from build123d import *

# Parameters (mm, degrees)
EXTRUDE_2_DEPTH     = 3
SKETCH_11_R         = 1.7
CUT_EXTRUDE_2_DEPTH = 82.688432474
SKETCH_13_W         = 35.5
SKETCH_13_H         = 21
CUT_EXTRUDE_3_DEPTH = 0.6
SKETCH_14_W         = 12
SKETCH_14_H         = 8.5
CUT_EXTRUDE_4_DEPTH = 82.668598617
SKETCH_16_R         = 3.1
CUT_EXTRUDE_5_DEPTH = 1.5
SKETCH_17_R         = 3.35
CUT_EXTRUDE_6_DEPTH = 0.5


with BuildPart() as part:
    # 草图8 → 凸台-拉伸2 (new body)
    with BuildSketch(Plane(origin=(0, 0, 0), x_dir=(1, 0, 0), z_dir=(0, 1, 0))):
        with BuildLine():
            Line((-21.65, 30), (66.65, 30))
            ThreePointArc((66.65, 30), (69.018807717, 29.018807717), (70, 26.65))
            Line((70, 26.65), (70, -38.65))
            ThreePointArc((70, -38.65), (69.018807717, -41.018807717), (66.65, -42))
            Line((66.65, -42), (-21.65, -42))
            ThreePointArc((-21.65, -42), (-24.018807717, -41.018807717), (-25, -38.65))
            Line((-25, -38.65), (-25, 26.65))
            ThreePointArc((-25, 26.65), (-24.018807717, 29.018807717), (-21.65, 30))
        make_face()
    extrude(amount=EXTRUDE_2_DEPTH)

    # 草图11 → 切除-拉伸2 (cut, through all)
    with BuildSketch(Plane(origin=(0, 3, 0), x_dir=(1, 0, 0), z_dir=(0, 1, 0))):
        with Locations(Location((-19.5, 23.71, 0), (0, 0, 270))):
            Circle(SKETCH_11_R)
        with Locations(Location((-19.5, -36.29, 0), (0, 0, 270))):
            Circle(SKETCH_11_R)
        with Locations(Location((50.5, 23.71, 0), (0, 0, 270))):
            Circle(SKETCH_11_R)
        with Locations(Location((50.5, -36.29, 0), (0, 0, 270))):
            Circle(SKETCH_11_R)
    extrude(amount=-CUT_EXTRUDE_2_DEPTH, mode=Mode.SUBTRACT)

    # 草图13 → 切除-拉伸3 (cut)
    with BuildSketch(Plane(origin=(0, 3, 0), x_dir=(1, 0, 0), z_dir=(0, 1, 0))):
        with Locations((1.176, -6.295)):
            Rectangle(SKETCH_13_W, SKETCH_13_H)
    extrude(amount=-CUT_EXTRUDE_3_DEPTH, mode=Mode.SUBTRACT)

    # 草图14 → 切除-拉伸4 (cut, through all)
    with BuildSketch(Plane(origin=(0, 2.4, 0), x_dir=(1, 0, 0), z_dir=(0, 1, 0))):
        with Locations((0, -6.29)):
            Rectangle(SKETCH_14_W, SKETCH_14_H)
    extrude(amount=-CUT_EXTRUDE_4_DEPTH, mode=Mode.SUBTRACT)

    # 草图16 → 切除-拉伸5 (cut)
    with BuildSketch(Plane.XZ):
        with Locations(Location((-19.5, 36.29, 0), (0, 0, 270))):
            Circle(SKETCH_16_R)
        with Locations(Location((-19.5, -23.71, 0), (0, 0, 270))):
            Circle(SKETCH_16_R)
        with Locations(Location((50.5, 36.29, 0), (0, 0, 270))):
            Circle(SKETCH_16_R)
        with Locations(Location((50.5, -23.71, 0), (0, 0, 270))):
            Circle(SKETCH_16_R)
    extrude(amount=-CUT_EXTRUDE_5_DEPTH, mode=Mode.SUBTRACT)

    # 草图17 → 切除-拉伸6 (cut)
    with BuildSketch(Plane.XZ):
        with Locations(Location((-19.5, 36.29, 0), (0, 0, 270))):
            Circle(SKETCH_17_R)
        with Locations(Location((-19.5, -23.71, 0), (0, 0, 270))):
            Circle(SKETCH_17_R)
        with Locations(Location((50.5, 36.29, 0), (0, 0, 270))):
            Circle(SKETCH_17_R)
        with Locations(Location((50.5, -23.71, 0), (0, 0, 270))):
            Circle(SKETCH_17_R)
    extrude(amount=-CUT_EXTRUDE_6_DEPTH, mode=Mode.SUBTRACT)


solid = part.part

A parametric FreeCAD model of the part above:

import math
import FreeCAD as App
import Part
import Sketcher

V = App.Vector
Q = App.Units.Quantity


def add_polygon(sketch, points):
    """Adds a closed chain of lines whose ends are joined by coincident constraints."""
    first, n = sketch.GeometryCount, len(points)
    for a, b in zip(points, points[1:] + points[:1]):
        sketch.addGeometry(Part.LineSegment(App.Vector(*a, 0), App.Vector(*b, 0)), False)
    for i in range(n):
        sketch.addConstraint(Sketcher.Constraint("Coincident", first + i, 2, first + (i + 1) % n, 1))

doc = App.newDocument("Part")
body = doc.addObject("PartDesign::Body", "Body")

sketch1 = doc.addObject("Sketcher::SketchObject", "Sketch")
body.addObject(sketch1)
sketch1.AttachmentSupport = (doc.XZ_Plane, [""])
sketch1.MapMode = "FlatFace"
sketch1.addGeometry([
    Part.LineSegment(V(66.65, -30, 0), V(-21.65, -30, 0)),
    Part.ArcOfCircle(Part.Circle(V(-21.65, -26.65, 0), V(0, 0, 1), 3.35), math.radians(180), math.radians(270)),
    Part.LineSegment(V(-25, -26.65, 0), V(-25, 38.65, 0)),
    Part.ArcOfCircle(Part.Circle(V(-21.65, 38.65, 0), V(0, 0, 1), 3.35), math.radians(90), math.radians(180)),
    Part.LineSegment(V(-21.65, 42, 0), V(66.65, 42, 0)),
    Part.ArcOfCircle(Part.Circle(V(66.65, 38.65, 0), V(0, 0, 1), 3.35), math.radians(0), math.radians(90)),
    Part.LineSegment(V(70, 38.65, 0), V(70, -26.65, 0)),
    Part.ArcOfCircle(Part.Circle(V(66.65, -26.65, 0), V(0, 0, 1), 3.35), math.radians(-90), math.radians(0)),
], False)
sketch1.addConstraint([
    Sketcher.Constraint("Tangent", 0, 2, 1, 2),
    Sketcher.Constraint("Tangent", 1, 1, 2, 1),
    Sketcher.Constraint("Tangent", 2, 2, 3, 2),
    Sketcher.Constraint("Tangent", 3, 1, 4, 1),
    Sketcher.Constraint("Tangent", 4, 2, 5, 2),
    Sketcher.Constraint("Tangent", 5, 1, 6, 1),
    Sketcher.Constraint("Tangent", 6, 2, 7, 2),
    Sketcher.Constraint("Tangent", 7, 1, 0, 1),
    Sketcher.Constraint("Horizontal", 0),
    Sketcher.Constraint("Vertical", 2),
    Sketcher.Constraint("Horizontal", 4),
    Sketcher.Constraint("Vertical", 6),
    Sketcher.Constraint("Equal", 1, 3),
    Sketcher.Constraint("Equal", 3, 5),
    Sketcher.Constraint("Equal", 5, 7),
    Sketcher.Constraint("Radius", 1, Q("3.35 mm")),
    Sketcher.Constraint("DistanceX", 0, 2, 0, 1, Q("88.3 mm")),
    Sketcher.Constraint("DistanceY", 2, 1, 2, 2, Q("65.3 mm")),
    Sketcher.Constraint("DistanceY", 0, 2, -1, 1, Q("30 mm")),
    Sketcher.Constraint("DistanceX", 1, 1, -1, 1, Q("25 mm")),
])
pad1 = doc.addObject("PartDesign::Pad", "Pad")
body.addObject(pad1)
pad1.Profile = sketch1
pad1.Length = 3
pad1.Reversed = True

sketch2 = doc.addObject("Sketcher::SketchObject", "Sketch001")
body.addObject(sketch2)
sketch2.AttachmentSupport = (doc.XZ_Plane, [""])
sketch2.MapMode = "FlatFace"
sketch2.AttachmentOffset = App.Placement(V(0, 0, -3), App.Rotation())
sketch2.addGeometry([
    Part.Circle(V(-19.5, -23.71, 0), V(0, 0, 1), 1.7),
    Part.Circle(V(-19.5, 36.29, 0), V(0, 0, 1), 1.7),
    Part.Circle(V(50.5, -23.71, 0), V(0, 0, 1), 1.7),
    Part.Circle(V(50.5, 36.29, 0), V(0, 0, 1), 1.7),
], False)
sketch2.addConstraint([
    Sketcher.Constraint("Equal", 0, 1),
    Sketcher.Constraint("Equal", 1, 2),
    Sketcher.Constraint("Equal", 2, 3),
    Sketcher.Constraint("Horizontal", 0, 3, 2, 3),
    Sketcher.Constraint("Horizontal", 1, 3, 3, 3),
    Sketcher.Constraint("Vertical", 0, 3, 1, 3),
    Sketcher.Constraint("Vertical", 2, 3, 3, 3),
    Sketcher.Constraint("Diameter", 0, Q("3.4 mm")),
    Sketcher.Constraint("DistanceY", 0, 3, 1, 3, Q("60 mm")),
    Sketcher.Constraint("DistanceX", 0, 3, 2, 3, Q("70 mm")),
    Sketcher.Constraint("DistanceX", 0, 3, -1, 1, Q("19.5 mm")),
    Sketcher.Constraint("DistanceY", 0, 3, -1, 1, Q("23.71 mm")),
])
pocket1 = doc.addObject("PartDesign::Pocket", "Pocket")
body.addObject(pocket1)
pocket1.Profile = sketch2
pocket1.Type = "ThroughAll"
pocket1.Reversed = True

sketch3 = doc.addObject("Sketcher::SketchObject", "Sketch002")
body.addObject(sketch3)
sketch3.AttachmentSupport = (doc.XZ_Plane, [""])
sketch3.MapMode = "FlatFace"
sketch3.AttachmentOffset = App.Placement(V(0, 0, -3), App.Rotation())
add_polygon(sketch3, [(-16.574, -4.205), (-16.574, 16.795), (18.926, 16.795), (18.926, -4.205)])
sketch3.addConstraint([
    Sketcher.Constraint("Vertical", 0),
    Sketcher.Constraint("Horizontal", 1),
    Sketcher.Constraint("Vertical", 2),
    Sketcher.Constraint("Horizontal", 3),
    Sketcher.Constraint("DistanceY", 0, 1, 0, 2, Q("21 mm")),
    Sketcher.Constraint("DistanceX", 1, 1, 1, 2, Q("35.5 mm")),
    Sketcher.Constraint("DistanceX", 0, 2, -1, 1, Q("16.574 mm")),
    Sketcher.Constraint("DistanceY", -1, 1, 0, 2, Q("16.795 mm")),
])
pocket2 = doc.addObject("PartDesign::Pocket", "Pocket001")
body.addObject(pocket2)
pocket2.Profile = sketch3
pocket2.Length = 0.6
pocket2.Reversed = True

sketch4 = doc.addObject("Sketcher::SketchObject", "Sketch003")
body.addObject(sketch4)
sketch4.AttachmentSupport = (doc.XZ_Plane, [""])
sketch4.MapMode = "FlatFace"
sketch4.AttachmentOffset = App.Placement(V(0, 0, -2.4), App.Rotation())
add_polygon(sketch4, [(-6, 2.04), (-6, 10.54), (6, 10.54), (6, 2.04)])
sketch4.addConstraint([
    Sketcher.Constraint("Vertical", 0),
    Sketcher.Constraint("Horizontal", 1),
    Sketcher.Constraint("Vertical", 2),
    Sketcher.Constraint("Horizontal", 3),
    Sketcher.Constraint("DistanceX", 1, 1, 1, 2, Q("12 mm")),
    Sketcher.Constraint("DistanceY", 0, 1, 0, 2, Q("8.5 mm")),
    Sketcher.Constraint("DistanceX", 0, 2, -1, 1, Q("6 mm")),
    Sketcher.Constraint("DistanceY", -1, 1, 0, 2, Q("10.54 mm")),
])
pocket3 = doc.addObject("PartDesign::Pocket", "Pocket002")
body.addObject(pocket3)
pocket3.Profile = sketch4
pocket3.Type = "ThroughAll"
pocket3.Reversed = True

sketch5 = doc.addObject("Sketcher::SketchObject", "Sketch004")
body.addObject(sketch5)
sketch5.AttachmentSupport = (doc.XZ_Plane, [""])
sketch5.MapMode = "FlatFace"
sketch5.addGeometry([
    Part.Circle(V(-19.5, 36.29, 0), V(0, 0, 1), 3.1),
    Part.Circle(V(-19.5, -23.71, 0), V(0, 0, 1), 3.1),
    Part.Circle(V(50.5, 36.29, 0), V(0, 0, 1), 3.1),
    Part.Circle(V(50.5, -23.71, 0), V(0, 0, 1), 3.1),
], False)
sketch5.addConstraint([
    Sketcher.Constraint("Equal", 0, 1),
    Sketcher.Constraint("Equal", 1, 2),
    Sketcher.Constraint("Equal", 2, 3),
    Sketcher.Constraint("Horizontal", 0, 3, 2, 3),
    Sketcher.Constraint("Horizontal", 1, 3, 3, 3),
    Sketcher.Constraint("Vertical", 0, 3, 1, 3),
    Sketcher.Constraint("Vertical", 2, 3, 3, 3),
    Sketcher.Constraint("Diameter", 0, Q("6.2 mm")),
    Sketcher.Constraint("DistanceY", 1, 3, 0, 3, Q("60 mm")),
    Sketcher.Constraint("DistanceX", 0, 3, 2, 3, Q("70 mm")),
    Sketcher.Constraint("DistanceX", 0, 3, -1, 1, Q("19.5 mm")),
    Sketcher.Constraint("DistanceY", -1, 1, 0, 3, Q("36.29 mm")),
])
pocket4 = doc.addObject("PartDesign::Pocket", "Pocket003")
body.addObject(pocket4)
pocket4.Profile = sketch5
pocket4.Length = 1.5

sketch6 = doc.addObject("Sketcher::SketchObject", "Sketch005")
body.addObject(sketch6)
sketch6.AttachmentSupport = (doc.XZ_Plane, [""])
sketch6.MapMode = "FlatFace"
sketch6.addGeometry([
    Part.Circle(V(-19.5, 36.29, 0), V(0, 0, 1), 3.35),
    Part.Circle(V(-19.5, -23.71, 0), V(0, 0, 1), 3.35),
    Part.Circle(V(50.5, 36.29, 0), V(0, 0, 1), 3.35),
    Part.Circle(V(50.5, -23.71, 0), V(0, 0, 1), 3.35),
], False)
sketch6.addConstraint([
    Sketcher.Constraint("Equal", 0, 1),
    Sketcher.Constraint("Equal", 1, 2),
    Sketcher.Constraint("Equal", 2, 3),
    Sketcher.Constraint("Horizontal", 0, 3, 2, 3),
    Sketcher.Constraint("Horizontal", 1, 3, 3, 3),
    Sketcher.Constraint("Vertical", 0, 3, 1, 3),
    Sketcher.Constraint("Vertical", 2, 3, 3, 3),
    Sketcher.Constraint("Diameter", 0, Q("6.7 mm")),
    Sketcher.Constraint("DistanceY", 1, 3, 0, 3, Q("60 mm")),
    Sketcher.Constraint("DistanceX", 0, 3, 2, 3, Q("70 mm")),
    Sketcher.Constraint("DistanceX", 0, 3, -1, 1, Q("19.5 mm")),
    Sketcher.Constraint("DistanceY", -1, 1, 0, 3, Q("36.29 mm")),
])
pocket5 = doc.addObject("PartDesign::Pocket", "Pocket004")
body.addObject(pocket5)
pocket5.Profile = sketch6
pocket5.Length = 0.5

doc.recompute()
